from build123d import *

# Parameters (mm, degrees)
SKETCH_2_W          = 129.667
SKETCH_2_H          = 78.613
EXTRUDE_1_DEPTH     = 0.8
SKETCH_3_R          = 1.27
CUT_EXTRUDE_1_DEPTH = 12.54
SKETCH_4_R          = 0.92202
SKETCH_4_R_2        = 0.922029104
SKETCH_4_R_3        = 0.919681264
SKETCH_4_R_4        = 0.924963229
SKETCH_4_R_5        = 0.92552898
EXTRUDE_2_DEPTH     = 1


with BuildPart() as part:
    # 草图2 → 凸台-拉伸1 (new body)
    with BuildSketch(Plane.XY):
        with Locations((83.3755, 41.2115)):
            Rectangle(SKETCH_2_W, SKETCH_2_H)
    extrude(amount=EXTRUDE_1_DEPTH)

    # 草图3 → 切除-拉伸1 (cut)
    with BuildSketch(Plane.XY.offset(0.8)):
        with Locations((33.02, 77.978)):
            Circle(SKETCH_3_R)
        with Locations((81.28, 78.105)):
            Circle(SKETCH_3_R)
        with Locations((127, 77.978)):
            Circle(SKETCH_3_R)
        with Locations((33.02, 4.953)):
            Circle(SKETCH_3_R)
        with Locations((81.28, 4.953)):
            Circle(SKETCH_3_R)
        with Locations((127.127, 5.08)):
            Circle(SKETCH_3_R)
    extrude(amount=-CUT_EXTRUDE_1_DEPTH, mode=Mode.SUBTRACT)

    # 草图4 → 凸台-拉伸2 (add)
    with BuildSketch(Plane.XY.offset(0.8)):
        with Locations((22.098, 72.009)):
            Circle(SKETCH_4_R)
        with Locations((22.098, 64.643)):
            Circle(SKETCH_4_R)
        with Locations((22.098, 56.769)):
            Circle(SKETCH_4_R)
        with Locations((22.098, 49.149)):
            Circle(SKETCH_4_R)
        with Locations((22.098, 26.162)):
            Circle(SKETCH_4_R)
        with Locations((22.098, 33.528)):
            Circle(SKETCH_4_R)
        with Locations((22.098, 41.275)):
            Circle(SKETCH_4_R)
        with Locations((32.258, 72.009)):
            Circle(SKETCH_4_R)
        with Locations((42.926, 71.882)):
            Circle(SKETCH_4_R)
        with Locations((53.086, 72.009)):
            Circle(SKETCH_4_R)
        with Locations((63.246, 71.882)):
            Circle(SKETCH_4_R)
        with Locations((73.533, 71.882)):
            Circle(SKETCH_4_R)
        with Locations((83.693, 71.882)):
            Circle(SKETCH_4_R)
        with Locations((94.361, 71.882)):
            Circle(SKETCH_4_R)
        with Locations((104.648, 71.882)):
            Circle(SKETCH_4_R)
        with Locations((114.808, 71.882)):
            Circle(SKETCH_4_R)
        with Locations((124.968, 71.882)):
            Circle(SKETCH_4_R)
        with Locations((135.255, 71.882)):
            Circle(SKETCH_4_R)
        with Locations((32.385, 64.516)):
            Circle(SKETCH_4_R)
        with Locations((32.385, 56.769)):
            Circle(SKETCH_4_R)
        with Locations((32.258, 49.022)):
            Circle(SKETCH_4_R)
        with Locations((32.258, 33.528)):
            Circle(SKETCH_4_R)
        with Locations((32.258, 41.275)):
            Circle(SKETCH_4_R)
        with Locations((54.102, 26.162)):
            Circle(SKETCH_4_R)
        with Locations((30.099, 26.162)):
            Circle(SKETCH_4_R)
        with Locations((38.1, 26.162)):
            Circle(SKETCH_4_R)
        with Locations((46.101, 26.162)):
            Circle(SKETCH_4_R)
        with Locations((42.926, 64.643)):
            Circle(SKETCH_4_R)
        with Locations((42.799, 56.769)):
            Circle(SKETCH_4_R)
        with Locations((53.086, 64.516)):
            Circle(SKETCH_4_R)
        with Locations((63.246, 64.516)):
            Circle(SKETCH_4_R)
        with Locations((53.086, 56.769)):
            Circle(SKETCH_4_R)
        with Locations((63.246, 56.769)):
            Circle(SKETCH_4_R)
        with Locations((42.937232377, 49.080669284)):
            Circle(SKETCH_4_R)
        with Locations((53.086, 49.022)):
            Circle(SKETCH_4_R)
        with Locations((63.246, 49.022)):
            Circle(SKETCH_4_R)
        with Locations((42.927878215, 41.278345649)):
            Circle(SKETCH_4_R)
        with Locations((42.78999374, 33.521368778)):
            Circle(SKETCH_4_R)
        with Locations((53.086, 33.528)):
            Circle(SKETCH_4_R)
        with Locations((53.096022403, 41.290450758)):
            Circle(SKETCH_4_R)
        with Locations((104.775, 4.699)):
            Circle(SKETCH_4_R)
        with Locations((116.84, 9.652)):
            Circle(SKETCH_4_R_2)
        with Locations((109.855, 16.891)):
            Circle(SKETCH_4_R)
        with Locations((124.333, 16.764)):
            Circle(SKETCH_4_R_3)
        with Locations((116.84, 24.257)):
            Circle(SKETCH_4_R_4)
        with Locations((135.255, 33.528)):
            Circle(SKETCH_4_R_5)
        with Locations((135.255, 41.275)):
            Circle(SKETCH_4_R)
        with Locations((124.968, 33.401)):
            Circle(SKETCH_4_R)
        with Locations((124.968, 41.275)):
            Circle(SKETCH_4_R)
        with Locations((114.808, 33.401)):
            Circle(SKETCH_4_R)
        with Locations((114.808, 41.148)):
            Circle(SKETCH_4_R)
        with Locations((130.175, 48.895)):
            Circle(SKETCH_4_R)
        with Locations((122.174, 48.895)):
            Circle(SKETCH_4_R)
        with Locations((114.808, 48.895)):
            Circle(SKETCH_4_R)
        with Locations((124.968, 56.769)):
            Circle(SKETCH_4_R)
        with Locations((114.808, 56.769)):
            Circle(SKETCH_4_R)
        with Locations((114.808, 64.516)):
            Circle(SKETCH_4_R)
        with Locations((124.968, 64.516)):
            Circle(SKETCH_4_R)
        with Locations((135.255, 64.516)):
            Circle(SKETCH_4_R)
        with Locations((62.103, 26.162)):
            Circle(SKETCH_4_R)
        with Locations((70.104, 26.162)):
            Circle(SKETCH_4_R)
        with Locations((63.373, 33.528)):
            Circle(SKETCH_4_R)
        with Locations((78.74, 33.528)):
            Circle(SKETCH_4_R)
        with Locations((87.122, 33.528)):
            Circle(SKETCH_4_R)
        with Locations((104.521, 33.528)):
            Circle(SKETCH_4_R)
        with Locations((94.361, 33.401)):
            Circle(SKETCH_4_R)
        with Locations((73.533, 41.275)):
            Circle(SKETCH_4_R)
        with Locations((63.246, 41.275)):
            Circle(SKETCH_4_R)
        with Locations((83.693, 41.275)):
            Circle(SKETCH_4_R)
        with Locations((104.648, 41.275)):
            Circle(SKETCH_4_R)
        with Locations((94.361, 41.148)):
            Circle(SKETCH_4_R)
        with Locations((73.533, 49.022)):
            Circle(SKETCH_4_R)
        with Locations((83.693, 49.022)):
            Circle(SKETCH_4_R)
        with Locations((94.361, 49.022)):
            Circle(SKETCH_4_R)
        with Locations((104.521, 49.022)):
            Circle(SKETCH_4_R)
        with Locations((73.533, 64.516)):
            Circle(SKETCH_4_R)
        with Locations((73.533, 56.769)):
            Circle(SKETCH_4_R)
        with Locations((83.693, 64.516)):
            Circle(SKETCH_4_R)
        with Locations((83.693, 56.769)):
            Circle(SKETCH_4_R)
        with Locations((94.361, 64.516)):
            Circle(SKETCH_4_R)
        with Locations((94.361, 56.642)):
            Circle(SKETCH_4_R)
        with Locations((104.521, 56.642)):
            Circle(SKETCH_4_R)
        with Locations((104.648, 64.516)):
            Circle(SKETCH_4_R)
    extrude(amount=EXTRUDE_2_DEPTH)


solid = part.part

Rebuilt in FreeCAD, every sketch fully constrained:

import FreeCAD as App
import Part
import Sketcher
Q = App.Units.Quantity


def add_polygon(sketch, points):
    """Adds a closed chain of lines whose ends are joined by coincident constraints."""
    first, n = sketch.GeometryCount, len(points)
    for a, b in zip(points, points[1:] + points[:1]):
        sketch.addGeometry(Part.LineSegment(App.Vector(*a, 0), App.Vector(*b, 0)), False)
    for i in range(n):
        sketch.addConstraint(Sketcher.Constraint("Coincident", first + i, 2, first + (i + 1) % n, 1))

doc = App.newDocument("Part")
body = doc.addObject("PartDesign::Body", "Body")

# Sketch on XY plane
sketch1 = body.newObject("Sketcher::SketchObject", "Sketch")
sketch1.AttachmentSupport = (doc.getObject("XY_Plane"), [""])
sketch1.MapMode = "FlatFace"
add_polygon(sketch1, [(18.542, 80.518), (18.542, 1.905), (148.209, 1.905), (148.209, 80.518)])  # lines 0-3
sketch1.addConstraint([
    Sketcher.Constraint("Vertical", 0),
    Sketcher.Constraint("Horizontal", 1),
    Sketcher.Constraint("Vertical", 2),
    Sketcher.Constraint("Horizontal", 3),
    Sketcher.Constraint("DistanceX", 1, 1, 1, 2, Q("5.105 in")),
    Sketcher.Constraint("DistanceY", 0, 2, 0, 1, Q("3.095 in")),
    Sketcher.Constraint("DistanceX", -1, 1, 0, 2, Q("0.73 in")),
    Sketcher.Constraint("DistanceY", -1, 1, 2, 2, Q("3.17 in")),
])
pad1 = body.newObject("PartDesign::Pad", "Pad")
pad1.Profile = sketch1
pad1.Length = 0.8

# Sketch on XY plane
sketch2 = body.newObject("Sketcher::SketchObject", "Sketch001")
sketch2.AttachmentSupport = (doc.getObject("XY_Plane"), [""])
sketch2.MapMode = "FlatFace"
sketch2.AttachmentOffset = App.Placement(App.Vector(0, 0, 0.8), App.Rotation())
sketch2.addGeometry([
    Part.Circle(App.Vector(33.02, 77.978, 0), App.Vector(0, 0, 1), 1.27),  # 0
    Part.Circle(App.Vector(81.28, 78.105, 0), App.Vector(0, 0, 1), 1.27),  # 1
    Part.Circle(App.Vector(127, 77.978, 0), App.Vector(0, 0, 1), 1.27),  # 2
    Part.Circle(App.Vector(33.02, 4.953, 0), App.Vector(0, 0, 1), 1.27),  # 3
    Part.Circle(App.Vector(81.28, 4.953, 0), App.Vector(0, 0, 1), 1.27),  # 4
    Part.Circle(App.Vector(127.127, 5.08, 0), App.Vector(0, 0, 1), 1.27),  # 5
], False)
sketch2.addConstraint([
    Sketcher.Constraint("Equal", 0, 1),
    Sketcher.Constraint("Equal", 1, 2),
    Sketcher.Constraint("Equal", 2, 3),
    Sketcher.Constraint("Equal", 3, 4),
    Sketcher.Constraint("Equal", 4, 5),
    Sketcher.Constraint("Horizontal", 0, 3, 2, 3),
    Sketcher.Constraint("Horizontal", 3, 3, 4, 3),
    Sketcher.Constraint("Vertical", 0, 3, 3, 3),
    Sketcher.Constraint("Vertical", 1, 3, 4, 3),
    Sketcher.Constraint("Diameter", 0, Q("0.1 in")),
    Sketcher.Constraint("DistanceX", -1, 1, 2, 3, Q("5 in")),
    Sketcher.Constraint("DistanceX", -1, 1, 0, 3, Q("1.3 in")),
    Sketcher.Constraint("DistanceX", -1, 1, 1, 3, Q("3.2 in")),
    Sketcher.Constraint("DistanceY", -1, 1, 5, 3, Q("0.2 in")),
    Sketcher.Constraint("DistanceY", -1, 1, 0, 3, Q("3.07 in")),
    Sketcher.Constraint("DistanceY", 3, 3, 1, 3, Q("2.88 in")),
    Sketcher.Constraint("DistanceY", -1, 1, 1, 3, Q("3.075 in")),
    Sketcher.Constraint("DistanceX", -1, 1, 5, 3, Q("5.005 in")),
])
pocket1 = body.newObject("PartDesign::Pocket", "Pocket")
pocket1.Profile = sketch2
pocket1.Length = 12.54

# Sketch on XY plane
sketch3 = body.newObject("Sketcher::SketchObject", "Sketch002")
sketch3.AttachmentSupport = (doc.getObject("XY_Plane"), [""])
sketch3.MapMode = "FlatFace"
sketch3.AttachmentOffset = App.Placement(App.Vector(0, 0, 0.8), App.Rotation())
sketch3.addGeometry([
    Part.Circle(App.Vector(22.098, 72.009, 0), App.Vector(0, 0, 1), 0.92202),  # 0
    Part.Circle(App.Vector(22.098, 64.643, 0), App.Vector(0, 0, 1), 0.92202),  # 1
    Part.Circle(App.Vector(22.098, 56.769, 0), App.Vector(0, 0, 1), 0.92202),  # 2
    Part.Circle(App.Vector(22.098, 49.149, 0), App.Vector(0, 0, 1), 0.92202),  # 3
    Part.Circle(App.Vector(22.098, 26.162, 0), App.Vector(0, 0, 1), 0.92202),  # 4
    Part.Circle(App.Vector(22.098, 33.528, 0), App.Vector(0, 0, 1), 0.92202),  # 5
    Part.Circle(App.Vector(22.098, 41.275, 0), App.Vector(0, 0, 1), 0.92202),  # 6
    Part.Circle(App.Vector(32.258, 72.009, 0), App.Vector(0, 0, 1), 0.92202),  # 7
    Part.Circle(App.Vector(42.926, 71.882, 0), App.Vector(0, 0, 1), 0.92202),  # 8
    Part.Circle(App.Vector(53.086, 72.009, 0), App.Vector(0, 0, 1), 0.92202),  # 9
    Part.Circle(App.Vector(63.246, 71.882, 0), App.Vector(0, 0, 1), 0.92202),  # 10
    Part.Circle(App.Vector(73.533, 71.882, 0), App.Vector(0, 0, 1), 0.92202),  # 11
    Part.Circle(App.Vector(83.693, 71.882, 0), App.Vector(0, 0, 1), 0.92202),  # 12
    Part.Circle(App.Vector(94.361, 71.882, 0), App.Vector(0, 0, 1), 0.92202),  # 13
    Part.Circle(App.Vector(104.648, 71.882, 0), App.Vector(0, 0, 1), 0.92202),  # 14
    Part.Circle(App.Vector(114.808, 71.882, 0), App.Vector(0, 0, 1), 0.92202),  # 15
    Part.Circle(App.Vector(124.968, 71.882, 0), App.Vector(0, 0, 1), 0.92202),  # 16
    Part.Circle(App.Vector(135.255, 71.882, 0), App.Vector(0, 0, 1), 0.92202),  # 17
    Part.Circle(App.Vector(32.385, 64.516, 0), App.Vector(0, 0, 1), 0.92202),  # 18
    Part.Circle(App.Vector(32.385, 56.769, 0), App.Vector(0, 0, 1), 0.92202),  # 19
    Part.Circle(App.Vector(32.258, 49.022, 0), App.Vector(0, 0, 1), 0.92202),  # 20
    Part.Circle(App.Vector(32.258, 33.528, 0), App.Vector(0, 0, 1), 0.92202),  # 21
    Part.Circle(App.Vector(32.258, 41.275, 0), App.Vector(0, 0, 1), 0.92202),  # 22
    Part.Circle(App.Vector(54.102, 26.162, 0), App.Vector(0, 0, 1), 0.92202),  # 23
    Part.Circle(App.Vector(30.099, 26.162, 0), App.Vector(0, 0, 1), 0.92202),  # 24
    Part.Circle(App.Vector(38.1, 26.162, 0), App.Vector(0, 0, 1), 0.92202),  # 25
    Part.Circle(App.Vector(46.101, 26.162, 0), App.Vector(0, 0, 1), 0.92202),  # 26
    Part.Circle(App.Vector(42.926, 64.643, 0), App.Vector(0, 0, 1), 0.92202),  # 27
    Part.Circle(App.Vector(42.799, 56.769, 0), App.Vector(0, 0, 1), 0.92202),  # 28
    Part.Circle(App.Vector(53.086, 64.516, 0), App.Vector(0, 0, 1), 0.92202),  # 29
    Part.Circle(App.Vector(63.246, 64.516, 0), App.Vector(0, 0, 1), 0.92202),  # 30
    Part.Circle(App.Vector(53.086, 56.769, 0), App.Vector(0, 0, 1), 0.92202),  # 31
    Part.Circle(App.Vector(63.246, 56.769, 0), App.Vector(0, 0, 1), 0.92202),  # 32
    Part.Circle(App.Vector(42.937232, 49.080669, 0), App.Vector(0, 0, 1), 0.92202),  # 33
    Part.Circle(App.Vector(53.086, 49.022, 0), App.Vector(0, 0, 1), 0.92202),  # 34
    Part.Circle(App.Vector(63.246, 49.022, 0), App.Vector(0, 0, 1), 0.92202),  # 35
    Part.Circle(App.Vector(42.927878, 41.278346, 0), App.Vector(0, 0, 1), 0.92202),  # 36
    Part.Circle(App.Vector(42.789994, 33.521369, 0), App.Vector(0, 0, 1), 0.92202),  # 37
    Part.Circle(App.Vector(53.086, 33.528, 0), App.Vector(0, 0, 1), 0.92202),  # 38
    Part.Circle(App.Vector(53.096022, 41.290451, 0), App.Vector(0, 0, 1), 0.92202),  # 39
    Part.Circle(App.Vector(104.775, 4.699, 0), App.Vector(0, 0, 1), 0.92202),  # 40
    Part.Circle(App.Vector(116.84, 9.652, 0), App.Vector(0, 0, 1), 0.922029),  # 41
    Part.Circle(App.Vector(109.855, 16.891, 0), App.Vector(0, 0, 1), 0.92202),  # 42
    Part.Circle(App.Vector(124.333, 16.764, 0), App.Vector(0, 0, 1), 0.919681),  # 43
    Part.Circle(App.Vector(116.84, 24.257, 0), App.Vector(0, 0, 1), 0.924963),  # 44
    Part.Circle(App.Vector(135.255, 33.528, 0), App.Vector(0, 0, 1), 0.925529),  # 45
    Part.Circle(App.Vector(135.255, 41.275, 0), App.Vector(0, 0, 1), 0.92202),  # 46
    Part.Circle(App.Vector(124.968, 33.401, 0), App.Vector(0, 0, 1), 0.92202),  # 47
    Part.Circle(App.Vector(124.968, 41.275, 0), App.Vector(0, 0, 1), 0.92202),  # 48
    Part.Circle(App.Vector(114.808, 33.401, 0), App.Vector(0, 0, 1), 0.92202),  # 49
    Part.Circle(App.Vector(114.808, 41.148, 0), App.Vector(0, 0, 1), 0.92202),  # 50
    Part.Circle(App.Vector(130.175, 48.895, 0), App.Vector(0, 0, 1), 0.92202),  # 51
    Part.Circle(App.Vector(122.174, 48.895, 0), App.Vector(0, 0, 1), 0.92202),  # 52
    Part.Circle(App.Vector(114.808, 48.895, 0), App.Vector(0, 0, 1), 0.92202),  # 53
    Part.Circle(App.Vector(124.968, 56.769, 0), App.Vector(0, 0, 1), 0.92202),  # 54
    Part.Circle(App.Vector(114.808, 56.769, 0), App.Vector(0, 0, 1), 0.92202),  # 55
    Part.Circle(App.Vector(114.808, 64.516, 0), App.Vector(0, 0, 1), 0.92202),  # 56
    Part.Circle(App.Vector(124.968, 64.516, 0), App.Vector(0, 0, 1), 0.92202),  # 57
    Part.Circle(App.Vector(135.255, 64.516, 0), App.Vector(0, 0, 1), 0.92202),  # 58
    Part.Circle(App.Vector(62.103, 26.162, 0), App.Vector(0, 0, 1), 0.92202),  # 59
    Part.Circle(App.Vector(70.104, 26.162, 0), App.Vector(0, 0, 1), 0.92202),  # 60
    Part.Circle(App.Vector(63.373, 33.528, 0), App.Vector(0, 0, 1), 0.92202),  # 61
    Part.Circle(App.Vector(78.74, 33.528, 0), App.Vector(0, 0, 1), 0.92202),  # 62
    Part.Circle(App.Vector(87.122, 33.528, 0), App.Vector(0, 0, 1), 0.92202),  # 63
    Part.Circle(App.Vector(104.521, 33.528, 0), App.Vector(0, 0, 1), 0.92202),  # 64
    Part.Circle(App.Vector(94.361, 33.401, 0), App.Vector(0, 0, 1), 0.92202),  # 65
    Part.Circle(App.Vector(73.533, 41.275, 0), App.Vector(0, 0, 1), 0.92202),  # 66
    Part.Circle(App.Vector(63.246, 41.275, 0), App.Vector(0, 0, 1), 0.92202),  # 67
    Part.Circle(App.Vector(83.693, 41.275, 0), App.Vector(0, 0, 1), 0.92202),  # 68
    Part.Circle(App.Vector(104.648, 41.275, 0), App.Vector(0, 0, 1), 0.92202),  # 69
    Part.Circle(App.Vector(94.361, 41.148, 0), App.Vector(0, 0, 1), 0.92202),  # 70
    Part.Circle(App.Vector(73.533, 49.022, 0), App.Vector(0, 0, 1), 0.92202),  # 71
    Part.Circle(App.Vector(83.693, 49.022, 0), App.Vector(0, 0, 1), 0.92202),  # 72
    Part.Circle(App.Vector(94.361, 49.022, 0), App.Vector(0, 0, 1), 0.92202),  # 73
    Part.Circle(App.Vector(104.521, 49.022, 0), App.Vector(0, 0, 1), 0.92202),  # 74
    Part.Circle(App.Vector(73.533, 64.516, 0), App.Vector(0, 0, 1), 0.92202),  # 75
    Part.Circle(App.Vector(73.533, 56.769, 0), App.Vector(0, 0, 1), 0.92202),  # 76
    Part.Circle(App.Vector(83.693, 64.516, 0), App.Vector(0, 0, 1), 0.92202),  # 77
    Part.Circle(App.Vector(83.693, 56.769, 0), App.Vector(0, 0, 1), 0.92202),  # 78
    Part.Circle(App.Vector(94.361, 64.516, 0), App.Vector(0, 0, 1), 0.92202),  # 79
    Part.Circle(App.Vector(94.361, 56.642, 0), App.Vector(0, 0, 1), 0.92202),  # 80
    Part.Circle(App.Vector(104.521, 56.642, 0), App.Vector(0, 0, 1), 0.92202),  # 81
    Part.Circle(App.Vector(104.648, 64.516, 0), App.Vector(0, 0, 1), 0.92202),  # 82
], False)
sketch3.addConstraint([
    Sketcher.Constraint("Equal", 0, 1),
    Sketcher.Constraint("Equal", 1, 2),
    Sketcher.Constraint("Equal", 2, 3),
    Sketcher.Constraint("Equal", 3, 4),
    Sketcher.Constraint("Equal", 4, 5),
    Sketcher.Constraint("Equal", 5, 6),
    Sketcher.Constraint("Equal", 6, 7),
    Sketcher.Constraint("Equal", 7, 8),
    Sketcher.Constraint("Equal", 8, 9),
    Sketcher.Constraint("Equal", 9, 10),
    Sketcher.Constraint("Equal", 10, 11),
    Sketcher.Constraint("Equal", 11, 12),
    Sketcher.Constraint("Equal", 12, 13),
    Sketcher.Constraint("Equal", 13, 14),
    Sketcher.Constraint("Equal", 14, 15),
    Sketcher.Constraint("Equal", 15, 16),
    Sketcher.Constraint("Equal", 16, 17),
    Sketcher.Constraint("Equal", 17, 18),
    Sketcher.Constraint("Equal", 18, 19),
    Sketcher.Constraint("Equal", 19, 20),
    Sketcher.Constraint("Equal", 20, 21),
    Sketcher.Constraint("Equal", 21, 22),
    Sketcher.Constraint("Equal", 22, 23),
    Sketcher.Constraint("Equal", 23, 24),
    Sketcher.Constraint("Equal", 24, 25),
    Sketcher.Constraint("Equal", 25, 26),
    Sketcher.Constraint("Equal", 26, 27),
    Sketcher.Constraint("Equal", 27, 28),
    Sketcher.Constraint("Equal", 28, 29),
    Sketcher.Constraint("Equal", 29, 30),
    Sketcher.Constraint("Equal", 30, 31),
    Sketcher.Constraint("Equal", 31, 32),
    Sketcher.Constraint("Equal", 32, 33),
    Sketcher.Constraint("Equal", 33, 34),
    Sketcher.Constraint("Equal", 34, 35),
    Sketcher.Constraint("Equal", 35, 36),
    Sketcher.Constraint("Equal", 36, 37),
    Sketcher.Constraint("Equal", 37, 38),
    Sketcher.Constraint("Equal", 38, 39),
    Sketcher.Constraint("Equal", 39, 40),
    Sketcher.Constraint("Equal", 40, 42),
    Sketcher.Constraint("Equal", 42, 46),
    Sketcher.Constraint("Equal", 46, 47),
    Sketcher.Constraint("Equal", 47, 48),
    Sketcher.Constraint("Equal", 48, 49),
    Sketcher.Constraint("Equal", 49, 50),
    Sketcher.Constraint("Equal", 50, 51),
    Sketcher.Constraint("Equal", 51, 52),
    Sketcher.Constraint("Equal", 52, 53),
    Sketcher.Constraint("Equal", 53, 54),
    Sketcher.Constraint("Equal", 54, 55),
    Sketcher.Constraint("Equal", 55, 56),
    Sketcher.Constraint("Equal", 56, 57),
    Sketcher.Constraint("Equal", 57, 58),
    Sketcher.Constraint("Equal", 58, 59),
    Sketcher.Constraint("Equal", 59, 60),
    Sketcher.Constraint("Equal", 60, 61),
    Sketcher.Constraint("Equal", 61, 62),
    Sketcher.Constraint("Equal", 62, 63),
    Sketcher.Constraint("Equal", 63, 64),
    Sketcher.Constraint("Equal", 64, 65),
    Sketcher.Constraint("Equal", 65, 66),
    Sketcher.Constraint("Equal", 66, 67),
    Sketcher.Constraint("Equal", 67, 68),
    Sketcher.Constraint("Equal", 68, 69),
    Sketcher.Constraint("Equal", 69, 70),
    Sketcher.Constraint("Equal", 70, 71),
    Sketcher.Constraint("Equal", 71, 72),
    Sketcher.Constraint("Equal", 72, 73),
    Sketcher.Constraint("Equal", 73, 74),
    Sketcher.Constraint("Equal", 74, 75),
    Sketcher.Constraint("Equal", 75, 76),
    Sketcher.Constraint("Equal", 76, 77),
    Sketcher.Constraint("Equal", 77, 78),
    Sketcher.Constraint("Equal", 78, 79),
    Sketcher.Constraint("Equal", 79, 80),
    Sketcher.Constraint("Equal", 80, 81),
    Sketcher.Constraint("Equal", 81, 82),
    Sketcher.Constraint("Horizontal", 0, 3, 7, 3),
    Sketcher.Constraint("Horizontal", 7, 3, 9, 3),
    Sketcher.Constraint("Horizontal", 8, 3, 10, 3),
    Sketcher.Constraint("Horizontal", 10, 3, 11, 3),
    Sketcher.Constraint("Horizontal", 11, 3, 12, 3),
    Sketcher.Constraint("Horizontal", 12, 3, 13, 3),
    Sketcher.Constraint("Horizontal", 13, 3, 14, 3),
    Sketcher.Constraint("Horizontal", 14, 3, 15, 3),
    Sketcher.Constraint("Horizontal", 15, 3, 16, 3),
    Sketcher.Constraint("Horizontal", 16, 3, 17, 3),
    Sketcher.Constraint("Horizontal", 2, 3, 19, 3),
    Sketcher.Constraint("Horizontal", 5, 3, 21, 3),
    Sketcher.Constraint("Horizontal", 6, 3, 22, 3),
    Sketcher.Constraint("Horizontal", 4, 3, 23, 3),
    Sketcher.Constraint("Horizontal", 23, 3, 24, 3),
    Sketcher.Constraint("Horizontal", 24, 3, 25, 3),
    Sketcher.Constraint("Horizontal", 25, 3, 26, 3),
    Sketcher.Constraint("Horizontal", 1, 3, 27, 3),
    Sketcher.Constraint("Horizontal", 19, 3, 28, 3),
    Sketcher.Constraint("Horizontal", 18, 3, 29, 3),
    Sketcher.Constraint("Horizontal", 29, 3, 30, 3),
    Sketcher.Constraint("Horizontal", 28, 3, 31, 3),
    Sketcher.Constraint("Horizontal", 31, 3, 32, 3),
    Sketcher.Constraint("Horizontal", 20, 3, 34, 3),
    Sketcher.Constraint("Horizontal", 34, 3, 35, 3),
    Sketcher.Constraint("Horizontal", 21, 3, 38, 3),
    Sketcher.Constraint("Horizontal", 38, 3, 45, 3),
    Sketcher.Constraint("Horizontal", 22, 3, 46, 3),
    Sketcher.Constraint("Horizontal", 46, 3, 48, 3),
    Sketcher.Constraint("Horizontal", 47, 3, 49, 3),
    Sketcher.Constraint("Horizontal", 51, 3, 52, 3),
    Sketcher.Constraint("Horizontal", 52, 3, 53, 3),
    Sketcher.Constraint("Horizontal", 32, 3, 54, 3),
    Sketcher.Constraint("Horizontal", 54, 3, 55, 3),
    Sketcher.Constraint("Horizontal", 30, 3, 56, 3),
    Sketcher.Constraint("Horizontal", 56, 3, 57, 3),
    Sketcher.Constraint("Horizontal", 57, 3, 58, 3),
    Sketcher.Constraint("Horizontal", 26, 3, 59, 3),
    Sketcher.Constraint("Horizontal", 59, 3, 60, 3),
    Sketcher.Constraint("Horizontal", 45, 3, 61, 3),
    Sketcher.Constraint("Horizontal", 61, 3, 62, 3),
    Sketcher.Constraint("Horizontal", 62, 3, 63, 3),
    Sketcher.Constraint("Horizontal", 63, 3, 64, 3),
    Sketcher.Constraint("Horizontal", 49, 3, 65, 3),
    Sketcher.Constraint("Horizontal", 48, 3, 66, 3),
    Sketcher.Constraint("Horizontal", 66, 3, 67, 3),
    Sketcher.Constraint("Horizontal", 67, 3, 68, 3),
    Sketcher.Constraint("Horizontal", 68, 3, 69, 3),
    Sketcher.Constraint("Horizontal", 50, 3, 70, 3),
    Sketcher.Constraint("Horizontal", 35, 3, 71, 3),
    Sketcher.Constraint("Horizontal", 71, 3, 72, 3),
    Sketcher.Constraint("Horizontal", 72, 3, 73, 3),
    Sketcher.Constraint("Horizontal", 73, 3, 74, 3),
    Sketcher.Constraint("Horizontal", 58, 3, 75, 3),
    Sketcher.Constraint("Horizontal", 55, 3, 76, 3),
    Sketcher.Constraint("Horizontal", 75, 3, 77, 3),
    Sketcher.Constraint("Horizontal", 76, 3, 78, 3),
    Sketcher.Constraint("Horizontal", 77, 3, 79, 3),
    Sketcher.Constraint("Horizontal", 80, 3, 81, 3),
    Sketcher.Constraint("Horizontal", 79, 3, 82, 3),
    Sketcher.Constraint("Vertical", 0, 3, 1, 3),
    Sketcher.Constraint("Vertical", 1, 3, 2, 3),
    Sketcher.Constraint("Vertical", 2, 3, 3, 3),
    Sketcher.Constraint("Vertical", 3, 3, 4, 3),
    Sketcher.Constraint("Vertical", 4, 3, 5, 3),
    Sketcher.Constraint("Vertical", 5, 3, 6, 3),
    Sketcher.Constraint("Vertical", 18, 3, 19, 3),
    Sketcher.Constraint("Vertical", 7, 3, 20, 3),
    Sketcher.Constraint("Vertical", 20, 3, 21, 3),
    Sketcher.Constraint("Vertical", 21, 3, 22, 3),
    Sketcher.Constraint("Vertical", 8, 3, 27, 3),
    Sketcher.Constraint("Vertical", 9, 3, 29, 3),
    Sketcher.Constraint("Vertical", 10, 3, 30, 3),
    Sketcher.Constraint("Vertical", 29, 3, 31, 3),
    Sketcher.Constraint("Vertical", 30, 3, 32, 3),
    Sketcher.Constraint("Vertical", 31, 3, 34, 3),
    Sketcher.Constraint("Vertical", 32, 3, 35, 3),
    Sketcher.Constraint("Vertical", 34, 3, 38, 3),
    Sketcher.Constraint("Vertical", 41, 3, 44, 3),
    Sketcher.Constraint("Vertical", 17, 3, 45, 3),
    Sketcher.Constraint("Vertical", 45, 3, 46, 3),
    Sketcher.Constraint("Vertical", 16, 3, 47, 3),
    Sketcher.Constraint("Vertical", 47, 3, 48, 3),
    Sketcher.Constraint("Vertical", 15, 3, 49, 3),
    Sketcher.Constraint("Vertical", 49, 3, 50, 3),
    Sketcher.Constraint("Vertical", 50, 3, 53, 3),
    Sketcher.Constraint("Vertical", 48, 3, 54, 3),
    Sketcher.Constraint("Vertical", 53, 3, 55, 3),
    Sketcher.Constraint("Vertical", 55, 3, 56, 3),
    Sketcher.Constraint("Vertical", 54, 3, 57, 3),
    Sketcher.Constraint("Vertical", 46, 3, 58, 3),
    Sketcher.Constraint("Vertical", 13, 3, 65, 3),
    Sketcher.Constraint("Vertical", 11, 3, 66, 3),
    Sketcher.Constraint("Vertical", 35, 3, 67, 3),
    Sketcher.Constraint("Vertical", 12, 3, 68, 3),
    Sketcher.Constraint("Vertical", 14, 3, 69, 3),
    Sketcher.Constraint("Vertical", 65, 3, 70, 3),
    Sketcher.Constraint("Vertical", 66, 3, 71, 3),
    Sketcher.Constraint("Vertical", 68, 3, 72, 3),
    Sketcher.Constraint("Vertical", 70, 3, 73, 3),
    Sketcher.Constraint("Vertical", 64, 3, 74, 3),
    Sketcher.Constraint("Vertical", 71, 3, 75, 3),
    Sketcher.Constraint("Vertical", 75, 3, 76, 3),
    Sketcher.Constraint("Vertical", 72, 3, 77, 3),
    Sketcher.Constraint("Vertical", 77, 3, 78, 3),
    Sketcher.Constraint("Vertical", 73, 3, 79, 3),
    Sketcher.Constraint("Vertical", 79, 3, 80, 3),
    Sketcher.Constraint("Vertical", 74, 3, 81, 3),
    Sketcher.Constraint("Vertical", 69, 3, 82, 3),
    Sketcher.Constraint("Diameter", 0, Q("0.0726 in")),
    Sketcher.Constraint("DistanceX", -1, 1, 25, 3, Q("1.5 in")),
    Sketcher.Constraint("DistanceX", -1, 1, 41, 3, Q("4.6 in")),
    Sketcher.Constraint("DistanceX", -1, 1, 62, 3, Q("3.1 in")),
    Sketcher.Constraint("DistanceX", -1, 1, 0, 3, Q("0.87 in")),
    Sketcher.Constraint("DistanceY", -1, 1, 4, 3, Q("1.03 in")),
    Sketcher.Constraint("DistanceY", -1, 1, 5, 3, Q("1.32 in")),
    Sketcher.Constraint("DistanceX", -1, 1, 7, 3, Q("1.27 in")),
    Sketcher.Constraint("DistanceX", -1, 1, 8, 3, Q("1.69 in")),
    Sketcher.Constraint("DistanceY", -1, 1, 8, 3, Q("2.83 in")),
    Sketcher.Constraint("DistanceX", -1, 1, 9, 3, Q("2.09 in")),
    Sketcher.Constraint("DistanceX", -1, 1, 10, 3, Q("2.49 in")),
    Sketcher.Constraint("DistanceX", -1, 1, 14, 3, Q("4.12 in")),
    Sketcher.Constraint("DistanceX", -1, 1, 15, 3, Q("4.52 in")),
    Sketcher.Constraint("DistanceX", -1, 1, 16, 3, Q("4.92 in")),
    Sketcher.Constraint("DistanceY", -1, 1, 18, 3, Q("2.54 in")),
    Sketcher.Constraint("DistanceY", -1, 1, 20, 3, Q("1.93 in")),
    Sketcher.Constraint("DistanceX", -1, 1, 23, 3, Q("2.13 in")),
    Sketcher.Constraint("DistanceY", -1, 1, 41, 3, Q("0.38 in")),
    Sketcher.Constraint("DistanceY", -1, 1, 43, 3, Q("0.66 in")),
    Sketcher.Constraint("DistanceY", -1, 1, 50, 3, Q("1.62 in")),
    Sketcher.Constraint("DistanceX", -1, 1, 52, 3, Q("4.81 in")),
    Sketcher.Constraint("DistanceX", -1, 1, 60, 3, Q("2.76 in")),
    Sketcher.Constraint("DistanceX", -1, 1, 63, 3, Q("3.43 in")),
    Sketcher.Constraint("DistanceY", -1, 1, 80, 3, Q("2.23 in")),
    Sketcher.Constraint("Diameter", 41, 1.844058),
    Sketcher.Constraint("DistanceY", -1, 1, 0, 3, Q("2.835 in")),
    Sketcher.Constraint("DistanceY", -1, 1, 1, 3, Q("2.545 in")),
    Sketcher.Constraint("DistanceY", -1, 1, 2, 3, Q("2.235 in")),
    Sketcher.Constraint("DistanceY", -1, 1, 3, 3, Q("1.935 in")),
    Sketcher.Constraint("DistanceY", -1, 1, 6, 3, Q("1.625 in")),
    Sketcher.Constraint("DistanceX", -1, 1, 11, 3, Q("2.895 in")),
    Sketcher.Constraint("DistanceX", -1, 1, 12, 3, Q("3.295 in")),
    Sketcher.Constraint("DistanceX", -1, 1, 13, 3, Q("3.715 in")),
    Sketcher.Constraint("DistanceX", -1, 1, 17, 3, Q("5.325 in")),
    Sketcher.Constraint("DistanceX", -1, 1, 18, 3, Q("1.275 in")),
    Sketcher.Constraint("DistanceX", -1, 1, 24, 3, Q("1.185 in")),
    Sketcher.Constraint("DistanceX", -1, 1, 26, 3, Q("1.815 in")),
    Sketcher.Constraint("DistanceX", -1, 1, 28, 3, Q("1.685 in")),
    Sketcher.Constraint("DistanceX", -1, 1, 40, 3, Q("4.125 in")),
    Sketcher.Constraint("DistanceY", -1, 1, 40, 3, Q("0.185 in")),
    Sketcher.Constraint("DistanceX", -1, 1, 42, 3, Q("4.325 in")),
    Sketcher.Constraint("DistanceY", -1, 1, 42, 3, Q("0.665 in")),
    Sketcher.Constraint("DistanceX", -1, 1, 43, 3, Q("4.895 in")),
    Sketcher.Constraint("DistanceY", -1, 1, 44, 3, Q("0.955 in")),
    Sketcher.Constraint("DistanceY", -1, 1, 47, 3, Q("1.315 in")),
    Sketcher.Constraint("DistanceX", -1, 1, 51, 3, Q("5.125 in")),
    Sketcher.Constraint("DistanceY", -1, 1, 51, 3, Q("1.925 in")),
    Sketcher.Constraint("DistanceX", -1, 1, 59, 3, Q("2.445 in")),
    Sketcher.Constraint("DistanceX", -1, 1, 61, 3, Q("2.495 in")),
    Sketcher.Constraint("DistanceX", -1, 1, 64, 3, Q("4.115 in")),
    Sketcher.Constraint("Diameter", 43, 1.839363),
    Sketcher.Constraint("Diameter", 44, 1.849926),
    Sketcher.Constraint("Diameter", 45, 1.851058),
    Sketcher.Constraint("DistanceY", -1, 1, 33, 3, 49.080669),
    Sketcher.Constraint("DistanceX", -1, 1, 36, 3, 42.927878),
    Sketcher.Constraint("DistanceY", -1, 1, 37, 3, 33.521369),
    Sketcher.Constraint("DistanceY", -1, 1, 39, 3, 41.290451),
    Sketcher.Constraint("DistanceX", -1, 1, 33, 3, 42.937232),
    Sketcher.Constraint("DistanceY", -1, 1, 36, 3, 41.278346),
    Sketcher.Constraint("DistanceX", -1, 1, 37, 3, 42.789994),
    Sketcher.Constraint("DistanceX", -1, 1, 39, 3, 53.096022),
])
pad2 = body.newObject("PartDesign::Pad", "Pad001")
pad2.Profile = sketch3
pad2.Length = 1

doc.recompute()
